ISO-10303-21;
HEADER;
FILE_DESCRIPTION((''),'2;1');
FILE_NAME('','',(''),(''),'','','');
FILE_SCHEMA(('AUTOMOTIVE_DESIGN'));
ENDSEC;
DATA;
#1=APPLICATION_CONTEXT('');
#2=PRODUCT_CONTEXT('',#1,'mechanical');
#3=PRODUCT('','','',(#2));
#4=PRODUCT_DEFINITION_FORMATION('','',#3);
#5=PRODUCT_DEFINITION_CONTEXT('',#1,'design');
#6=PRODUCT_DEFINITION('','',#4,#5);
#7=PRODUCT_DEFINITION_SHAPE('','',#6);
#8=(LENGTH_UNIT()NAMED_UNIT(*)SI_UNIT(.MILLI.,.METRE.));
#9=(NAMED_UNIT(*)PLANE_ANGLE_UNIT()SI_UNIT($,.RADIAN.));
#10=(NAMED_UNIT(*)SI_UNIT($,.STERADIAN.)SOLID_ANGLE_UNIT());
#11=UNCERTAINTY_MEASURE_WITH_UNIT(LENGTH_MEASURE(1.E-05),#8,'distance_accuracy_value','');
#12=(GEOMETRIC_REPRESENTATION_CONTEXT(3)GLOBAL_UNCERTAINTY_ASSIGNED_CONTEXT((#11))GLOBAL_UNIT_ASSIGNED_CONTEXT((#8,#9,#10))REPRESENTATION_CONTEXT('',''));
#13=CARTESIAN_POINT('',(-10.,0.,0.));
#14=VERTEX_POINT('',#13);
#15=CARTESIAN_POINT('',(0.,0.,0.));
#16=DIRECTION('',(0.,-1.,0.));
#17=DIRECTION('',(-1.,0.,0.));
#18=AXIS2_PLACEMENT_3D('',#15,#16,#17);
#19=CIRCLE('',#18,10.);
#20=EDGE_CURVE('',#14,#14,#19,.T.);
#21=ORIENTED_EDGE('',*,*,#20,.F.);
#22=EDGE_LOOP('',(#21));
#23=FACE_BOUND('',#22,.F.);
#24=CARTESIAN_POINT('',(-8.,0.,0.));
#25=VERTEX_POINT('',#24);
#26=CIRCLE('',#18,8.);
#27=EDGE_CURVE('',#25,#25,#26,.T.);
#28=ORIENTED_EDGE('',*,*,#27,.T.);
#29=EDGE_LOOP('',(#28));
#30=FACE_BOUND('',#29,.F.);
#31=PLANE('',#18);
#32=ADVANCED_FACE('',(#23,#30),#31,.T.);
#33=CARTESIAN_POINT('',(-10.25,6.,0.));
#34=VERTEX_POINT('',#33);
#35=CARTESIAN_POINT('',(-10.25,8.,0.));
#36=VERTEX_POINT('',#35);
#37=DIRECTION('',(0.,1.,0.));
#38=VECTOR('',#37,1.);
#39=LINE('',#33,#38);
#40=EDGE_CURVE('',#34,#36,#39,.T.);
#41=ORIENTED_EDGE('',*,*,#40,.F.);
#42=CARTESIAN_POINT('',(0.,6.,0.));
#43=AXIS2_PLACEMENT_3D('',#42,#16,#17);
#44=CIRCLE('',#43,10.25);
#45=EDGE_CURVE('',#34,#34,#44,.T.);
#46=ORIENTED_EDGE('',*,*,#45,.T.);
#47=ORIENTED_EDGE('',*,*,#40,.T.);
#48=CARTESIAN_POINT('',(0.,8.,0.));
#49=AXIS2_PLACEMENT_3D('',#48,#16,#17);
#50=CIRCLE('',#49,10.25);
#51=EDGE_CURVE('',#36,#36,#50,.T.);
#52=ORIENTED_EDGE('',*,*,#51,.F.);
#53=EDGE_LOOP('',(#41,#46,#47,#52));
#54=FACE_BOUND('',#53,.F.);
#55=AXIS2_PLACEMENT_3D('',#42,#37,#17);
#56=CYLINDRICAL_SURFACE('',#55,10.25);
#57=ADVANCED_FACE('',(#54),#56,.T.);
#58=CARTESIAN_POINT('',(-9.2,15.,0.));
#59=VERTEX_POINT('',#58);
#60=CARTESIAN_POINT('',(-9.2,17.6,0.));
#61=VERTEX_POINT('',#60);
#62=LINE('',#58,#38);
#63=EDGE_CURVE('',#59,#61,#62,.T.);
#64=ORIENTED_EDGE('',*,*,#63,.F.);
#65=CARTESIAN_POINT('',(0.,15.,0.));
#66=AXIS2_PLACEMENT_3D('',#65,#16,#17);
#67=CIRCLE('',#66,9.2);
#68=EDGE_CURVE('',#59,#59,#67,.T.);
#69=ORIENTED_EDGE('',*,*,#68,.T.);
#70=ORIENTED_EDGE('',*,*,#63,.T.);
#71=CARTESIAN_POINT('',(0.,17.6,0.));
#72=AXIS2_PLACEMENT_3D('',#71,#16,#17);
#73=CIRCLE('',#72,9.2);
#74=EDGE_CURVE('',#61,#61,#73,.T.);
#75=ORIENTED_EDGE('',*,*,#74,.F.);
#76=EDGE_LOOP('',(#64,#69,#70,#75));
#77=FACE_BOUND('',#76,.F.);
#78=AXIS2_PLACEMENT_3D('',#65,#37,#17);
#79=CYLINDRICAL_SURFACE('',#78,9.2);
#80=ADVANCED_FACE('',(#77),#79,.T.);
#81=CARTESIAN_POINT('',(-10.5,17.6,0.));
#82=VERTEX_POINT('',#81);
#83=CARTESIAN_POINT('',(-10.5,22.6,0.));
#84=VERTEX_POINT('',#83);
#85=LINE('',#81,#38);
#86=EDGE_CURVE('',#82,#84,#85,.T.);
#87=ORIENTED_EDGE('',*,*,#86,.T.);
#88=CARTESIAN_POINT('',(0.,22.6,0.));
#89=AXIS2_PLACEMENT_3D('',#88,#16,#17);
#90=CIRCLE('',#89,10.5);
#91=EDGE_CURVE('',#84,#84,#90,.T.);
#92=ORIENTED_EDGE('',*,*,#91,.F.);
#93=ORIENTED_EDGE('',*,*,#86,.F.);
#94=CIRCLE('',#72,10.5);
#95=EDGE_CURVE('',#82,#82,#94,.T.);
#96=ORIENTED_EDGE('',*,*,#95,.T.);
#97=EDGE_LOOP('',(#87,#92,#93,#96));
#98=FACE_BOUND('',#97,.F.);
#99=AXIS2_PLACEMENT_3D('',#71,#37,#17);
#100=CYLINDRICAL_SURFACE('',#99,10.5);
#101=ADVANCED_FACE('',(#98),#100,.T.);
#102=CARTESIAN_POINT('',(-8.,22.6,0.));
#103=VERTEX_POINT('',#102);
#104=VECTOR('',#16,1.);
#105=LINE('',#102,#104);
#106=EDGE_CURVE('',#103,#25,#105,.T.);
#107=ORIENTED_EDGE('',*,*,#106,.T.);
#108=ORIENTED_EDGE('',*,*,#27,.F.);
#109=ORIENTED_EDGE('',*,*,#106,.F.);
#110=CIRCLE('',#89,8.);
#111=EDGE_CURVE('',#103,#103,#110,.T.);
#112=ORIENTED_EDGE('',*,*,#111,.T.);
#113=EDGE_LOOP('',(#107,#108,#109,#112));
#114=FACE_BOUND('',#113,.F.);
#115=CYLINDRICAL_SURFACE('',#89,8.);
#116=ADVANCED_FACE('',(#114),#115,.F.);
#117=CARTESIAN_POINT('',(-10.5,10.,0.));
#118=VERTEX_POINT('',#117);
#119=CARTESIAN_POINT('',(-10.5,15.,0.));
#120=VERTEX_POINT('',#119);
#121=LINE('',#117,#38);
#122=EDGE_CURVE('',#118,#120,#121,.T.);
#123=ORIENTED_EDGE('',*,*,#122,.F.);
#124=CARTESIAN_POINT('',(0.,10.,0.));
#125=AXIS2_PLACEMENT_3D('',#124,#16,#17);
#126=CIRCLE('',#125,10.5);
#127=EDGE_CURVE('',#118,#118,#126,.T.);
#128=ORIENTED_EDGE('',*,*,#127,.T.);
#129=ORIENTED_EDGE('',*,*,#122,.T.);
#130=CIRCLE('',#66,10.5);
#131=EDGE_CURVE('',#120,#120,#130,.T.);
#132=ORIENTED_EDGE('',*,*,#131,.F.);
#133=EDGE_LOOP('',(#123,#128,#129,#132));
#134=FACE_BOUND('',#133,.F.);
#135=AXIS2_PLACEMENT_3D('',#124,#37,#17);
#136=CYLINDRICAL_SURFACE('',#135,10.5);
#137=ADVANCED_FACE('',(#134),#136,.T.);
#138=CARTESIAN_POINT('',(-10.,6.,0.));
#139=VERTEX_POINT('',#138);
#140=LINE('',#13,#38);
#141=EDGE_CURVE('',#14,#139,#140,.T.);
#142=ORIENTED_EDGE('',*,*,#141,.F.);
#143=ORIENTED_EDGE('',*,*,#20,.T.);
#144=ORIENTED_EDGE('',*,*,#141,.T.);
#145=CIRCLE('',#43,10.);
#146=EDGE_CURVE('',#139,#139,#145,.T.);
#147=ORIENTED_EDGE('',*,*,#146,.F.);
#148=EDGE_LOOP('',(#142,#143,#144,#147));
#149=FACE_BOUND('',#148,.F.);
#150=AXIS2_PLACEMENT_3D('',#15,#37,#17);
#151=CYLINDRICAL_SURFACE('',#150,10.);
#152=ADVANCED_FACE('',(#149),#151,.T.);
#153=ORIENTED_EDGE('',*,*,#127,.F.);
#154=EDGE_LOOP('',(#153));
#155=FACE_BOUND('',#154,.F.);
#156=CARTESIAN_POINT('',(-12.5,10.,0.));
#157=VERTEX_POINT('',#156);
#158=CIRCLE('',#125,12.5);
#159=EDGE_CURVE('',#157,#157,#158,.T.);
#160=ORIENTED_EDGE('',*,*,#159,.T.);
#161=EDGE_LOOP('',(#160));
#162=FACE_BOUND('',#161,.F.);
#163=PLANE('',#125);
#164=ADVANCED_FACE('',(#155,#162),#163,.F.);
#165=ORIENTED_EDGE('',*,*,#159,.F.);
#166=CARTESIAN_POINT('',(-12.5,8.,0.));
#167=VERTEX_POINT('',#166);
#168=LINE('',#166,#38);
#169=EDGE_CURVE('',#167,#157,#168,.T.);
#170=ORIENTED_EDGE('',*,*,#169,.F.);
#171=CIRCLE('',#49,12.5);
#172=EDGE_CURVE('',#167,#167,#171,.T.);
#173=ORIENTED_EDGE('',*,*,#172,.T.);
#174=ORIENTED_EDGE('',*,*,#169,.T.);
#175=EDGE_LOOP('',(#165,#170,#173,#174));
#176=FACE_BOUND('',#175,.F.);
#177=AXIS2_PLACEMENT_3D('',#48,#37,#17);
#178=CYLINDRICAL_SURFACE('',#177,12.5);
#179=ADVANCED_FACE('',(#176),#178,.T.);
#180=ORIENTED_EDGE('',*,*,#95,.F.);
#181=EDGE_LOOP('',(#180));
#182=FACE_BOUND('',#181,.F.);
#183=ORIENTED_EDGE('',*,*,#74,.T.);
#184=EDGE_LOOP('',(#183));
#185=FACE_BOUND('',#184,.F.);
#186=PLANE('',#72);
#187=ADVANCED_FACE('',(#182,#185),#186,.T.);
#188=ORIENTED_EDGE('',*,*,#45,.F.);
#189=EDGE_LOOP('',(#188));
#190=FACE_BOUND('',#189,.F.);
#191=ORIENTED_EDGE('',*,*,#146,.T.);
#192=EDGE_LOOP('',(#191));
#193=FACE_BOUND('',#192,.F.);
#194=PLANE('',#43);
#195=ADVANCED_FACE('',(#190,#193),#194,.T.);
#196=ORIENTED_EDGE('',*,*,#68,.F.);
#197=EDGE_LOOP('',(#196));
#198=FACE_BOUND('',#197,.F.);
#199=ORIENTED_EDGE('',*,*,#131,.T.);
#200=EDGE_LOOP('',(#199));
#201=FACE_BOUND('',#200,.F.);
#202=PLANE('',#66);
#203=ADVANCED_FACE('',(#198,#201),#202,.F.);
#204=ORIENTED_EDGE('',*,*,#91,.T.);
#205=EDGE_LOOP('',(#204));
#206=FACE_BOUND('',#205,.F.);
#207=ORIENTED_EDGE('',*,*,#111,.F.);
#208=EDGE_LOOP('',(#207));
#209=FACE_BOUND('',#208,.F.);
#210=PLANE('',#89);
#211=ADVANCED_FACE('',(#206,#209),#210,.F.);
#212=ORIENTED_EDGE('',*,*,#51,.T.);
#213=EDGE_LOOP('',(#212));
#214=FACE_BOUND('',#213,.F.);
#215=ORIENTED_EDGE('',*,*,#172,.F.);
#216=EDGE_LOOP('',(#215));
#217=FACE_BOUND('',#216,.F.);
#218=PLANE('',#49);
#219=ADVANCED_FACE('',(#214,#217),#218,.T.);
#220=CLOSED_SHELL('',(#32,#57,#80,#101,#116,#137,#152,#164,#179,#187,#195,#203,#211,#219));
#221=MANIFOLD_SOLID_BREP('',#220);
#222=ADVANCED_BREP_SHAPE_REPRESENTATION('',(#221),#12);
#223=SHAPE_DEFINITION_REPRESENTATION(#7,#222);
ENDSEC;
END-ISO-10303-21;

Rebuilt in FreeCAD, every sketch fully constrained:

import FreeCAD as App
import Part
import Sketcher
Q = App.Units.Quantity


def add_polygon(sketch, points):
    """Adds a closed chain of lines whose ends are joined by coincident constraints."""
    first, n = sketch.GeometryCount, len(points)
    for a, b in zip(points, points[1:] + points[:1]):
        sketch.addGeometry(Part.LineSegment(App.Vector(*a, 0), App.Vector(*b, 0)), False)
    for i in range(n):
        sketch.addConstraint(Sketcher.Constraint("Coincident", first + i, 2, first + (i + 1) % n, 1))

doc = App.newDocument("Part")
body = doc.addObject("PartDesign::Body", "Body")

sketch1 = doc.addObject("Sketcher::SketchObject", "Sketch")
body.addObject(sketch1)
sketch1.AttachmentSupport = (doc.XY_Plane, [""])
sketch1.MapMode = "FlatFace"
add_polygon(sketch1, [(-10, 0), (-8, 0), (-8, 22.6), (-10.5, 22.6), (-10.5, 17.6), (-9.2, 17.6), (-9.2, 15), (-10.5, 15), (-10.5, 10), (-12.5, 10), (-12.5, 8), (-10.25, 8), (-10.25, 6), (-10, 6)])
sketch1.addConstraint(Sketcher.Constraint("Horizontal", 0))
sketch1.addConstraint(Sketcher.Constraint("Vertical", 1))
sketch1.addConstraint(Sketcher.Constraint("Horizontal", 2))
sketch1.addConstraint(Sketcher.Constraint("Vertical", 3))
sketch1.addConstraint(Sketcher.Constraint("Horizontal", 4))
sketch1.addConstraint(Sketcher.Constraint("Vertical", 5))
sketch1.addConstraint(Sketcher.Constraint("Horizontal", 6))
sketch1.addConstraint(Sketcher.Constraint("Vertical", 7))
sketch1.addConstraint(Sketcher.Constraint("Horizontal", 8))
sketch1.addConstraint(Sketcher.Constraint("Vertical", 9))
sketch1.addConstraint(Sketcher.Constraint("Horizontal", 10))
sketch1.addConstraint(Sketcher.Constraint("Vertical", 11))
sketch1.addConstraint(Sketcher.Constraint("Horizontal", 12))
sketch1.addConstraint(Sketcher.Constraint("Vertical", 13))
sketch1.addConstraint(Sketcher.Constraint("PointOnObject", 0, 2, -1))
sketch1.addConstraint(Sketcher.Constraint("Vertical", 3, 2, 6, 2))
sketch1.addConstraint(Sketcher.Constraint("Equal", 0, 8))
sketch1.addConstraint(Sketcher.Constraint("Equal", 3, 7))
sketch1.addConstraint(Sketcher.Constraint("Equal", 8, 9))
sketch1.addConstraint(Sketcher.Constraint("Equal", 9, 11))
sketch1.addConstraint(Sketcher.Constraint("DistanceX", 0, 1, 0, 2, Q("2 mm")))
sketch1.addConstraint(Sketcher.Constraint("DistanceY", 3, 2, 3, 1, Q("5 mm")))
sketch1.addConstraint(Sketcher.Constraint("DistanceY", 13, 2, 13, 1, Q("6 mm")))
sketch1.addConstraint(Sketcher.Constraint("DistanceX", 4, 1, 4, 2, Q("1.3 mm")))
sketch1.addConstraint(Sketcher.Constraint("DistanceY", 5, 2, 5, 1, Q("2.6 mm")))
sketch1.addConstraint(Sketcher.Constraint("DistanceX", 0, 2, -1, 1, Q("8 mm")))
sketch1.addConstraint(Sketcher.Constraint("DistanceX", 10, 1, 10, 2, Q("2.25 mm")))
sketch1.addConstraint(Sketcher.Constraint("DistanceX", 12, 1, 12, 2, Q("0.25 mm")))
revolution = doc.addObject("PartDesign::Revolution", "Revolution")
body.addObject(revolution)
revolution.Profile = sketch1
revolution.ReferenceAxis = (sketch1, ["V_Axis"])
revolution.Angle = 360

doc.recompute()
